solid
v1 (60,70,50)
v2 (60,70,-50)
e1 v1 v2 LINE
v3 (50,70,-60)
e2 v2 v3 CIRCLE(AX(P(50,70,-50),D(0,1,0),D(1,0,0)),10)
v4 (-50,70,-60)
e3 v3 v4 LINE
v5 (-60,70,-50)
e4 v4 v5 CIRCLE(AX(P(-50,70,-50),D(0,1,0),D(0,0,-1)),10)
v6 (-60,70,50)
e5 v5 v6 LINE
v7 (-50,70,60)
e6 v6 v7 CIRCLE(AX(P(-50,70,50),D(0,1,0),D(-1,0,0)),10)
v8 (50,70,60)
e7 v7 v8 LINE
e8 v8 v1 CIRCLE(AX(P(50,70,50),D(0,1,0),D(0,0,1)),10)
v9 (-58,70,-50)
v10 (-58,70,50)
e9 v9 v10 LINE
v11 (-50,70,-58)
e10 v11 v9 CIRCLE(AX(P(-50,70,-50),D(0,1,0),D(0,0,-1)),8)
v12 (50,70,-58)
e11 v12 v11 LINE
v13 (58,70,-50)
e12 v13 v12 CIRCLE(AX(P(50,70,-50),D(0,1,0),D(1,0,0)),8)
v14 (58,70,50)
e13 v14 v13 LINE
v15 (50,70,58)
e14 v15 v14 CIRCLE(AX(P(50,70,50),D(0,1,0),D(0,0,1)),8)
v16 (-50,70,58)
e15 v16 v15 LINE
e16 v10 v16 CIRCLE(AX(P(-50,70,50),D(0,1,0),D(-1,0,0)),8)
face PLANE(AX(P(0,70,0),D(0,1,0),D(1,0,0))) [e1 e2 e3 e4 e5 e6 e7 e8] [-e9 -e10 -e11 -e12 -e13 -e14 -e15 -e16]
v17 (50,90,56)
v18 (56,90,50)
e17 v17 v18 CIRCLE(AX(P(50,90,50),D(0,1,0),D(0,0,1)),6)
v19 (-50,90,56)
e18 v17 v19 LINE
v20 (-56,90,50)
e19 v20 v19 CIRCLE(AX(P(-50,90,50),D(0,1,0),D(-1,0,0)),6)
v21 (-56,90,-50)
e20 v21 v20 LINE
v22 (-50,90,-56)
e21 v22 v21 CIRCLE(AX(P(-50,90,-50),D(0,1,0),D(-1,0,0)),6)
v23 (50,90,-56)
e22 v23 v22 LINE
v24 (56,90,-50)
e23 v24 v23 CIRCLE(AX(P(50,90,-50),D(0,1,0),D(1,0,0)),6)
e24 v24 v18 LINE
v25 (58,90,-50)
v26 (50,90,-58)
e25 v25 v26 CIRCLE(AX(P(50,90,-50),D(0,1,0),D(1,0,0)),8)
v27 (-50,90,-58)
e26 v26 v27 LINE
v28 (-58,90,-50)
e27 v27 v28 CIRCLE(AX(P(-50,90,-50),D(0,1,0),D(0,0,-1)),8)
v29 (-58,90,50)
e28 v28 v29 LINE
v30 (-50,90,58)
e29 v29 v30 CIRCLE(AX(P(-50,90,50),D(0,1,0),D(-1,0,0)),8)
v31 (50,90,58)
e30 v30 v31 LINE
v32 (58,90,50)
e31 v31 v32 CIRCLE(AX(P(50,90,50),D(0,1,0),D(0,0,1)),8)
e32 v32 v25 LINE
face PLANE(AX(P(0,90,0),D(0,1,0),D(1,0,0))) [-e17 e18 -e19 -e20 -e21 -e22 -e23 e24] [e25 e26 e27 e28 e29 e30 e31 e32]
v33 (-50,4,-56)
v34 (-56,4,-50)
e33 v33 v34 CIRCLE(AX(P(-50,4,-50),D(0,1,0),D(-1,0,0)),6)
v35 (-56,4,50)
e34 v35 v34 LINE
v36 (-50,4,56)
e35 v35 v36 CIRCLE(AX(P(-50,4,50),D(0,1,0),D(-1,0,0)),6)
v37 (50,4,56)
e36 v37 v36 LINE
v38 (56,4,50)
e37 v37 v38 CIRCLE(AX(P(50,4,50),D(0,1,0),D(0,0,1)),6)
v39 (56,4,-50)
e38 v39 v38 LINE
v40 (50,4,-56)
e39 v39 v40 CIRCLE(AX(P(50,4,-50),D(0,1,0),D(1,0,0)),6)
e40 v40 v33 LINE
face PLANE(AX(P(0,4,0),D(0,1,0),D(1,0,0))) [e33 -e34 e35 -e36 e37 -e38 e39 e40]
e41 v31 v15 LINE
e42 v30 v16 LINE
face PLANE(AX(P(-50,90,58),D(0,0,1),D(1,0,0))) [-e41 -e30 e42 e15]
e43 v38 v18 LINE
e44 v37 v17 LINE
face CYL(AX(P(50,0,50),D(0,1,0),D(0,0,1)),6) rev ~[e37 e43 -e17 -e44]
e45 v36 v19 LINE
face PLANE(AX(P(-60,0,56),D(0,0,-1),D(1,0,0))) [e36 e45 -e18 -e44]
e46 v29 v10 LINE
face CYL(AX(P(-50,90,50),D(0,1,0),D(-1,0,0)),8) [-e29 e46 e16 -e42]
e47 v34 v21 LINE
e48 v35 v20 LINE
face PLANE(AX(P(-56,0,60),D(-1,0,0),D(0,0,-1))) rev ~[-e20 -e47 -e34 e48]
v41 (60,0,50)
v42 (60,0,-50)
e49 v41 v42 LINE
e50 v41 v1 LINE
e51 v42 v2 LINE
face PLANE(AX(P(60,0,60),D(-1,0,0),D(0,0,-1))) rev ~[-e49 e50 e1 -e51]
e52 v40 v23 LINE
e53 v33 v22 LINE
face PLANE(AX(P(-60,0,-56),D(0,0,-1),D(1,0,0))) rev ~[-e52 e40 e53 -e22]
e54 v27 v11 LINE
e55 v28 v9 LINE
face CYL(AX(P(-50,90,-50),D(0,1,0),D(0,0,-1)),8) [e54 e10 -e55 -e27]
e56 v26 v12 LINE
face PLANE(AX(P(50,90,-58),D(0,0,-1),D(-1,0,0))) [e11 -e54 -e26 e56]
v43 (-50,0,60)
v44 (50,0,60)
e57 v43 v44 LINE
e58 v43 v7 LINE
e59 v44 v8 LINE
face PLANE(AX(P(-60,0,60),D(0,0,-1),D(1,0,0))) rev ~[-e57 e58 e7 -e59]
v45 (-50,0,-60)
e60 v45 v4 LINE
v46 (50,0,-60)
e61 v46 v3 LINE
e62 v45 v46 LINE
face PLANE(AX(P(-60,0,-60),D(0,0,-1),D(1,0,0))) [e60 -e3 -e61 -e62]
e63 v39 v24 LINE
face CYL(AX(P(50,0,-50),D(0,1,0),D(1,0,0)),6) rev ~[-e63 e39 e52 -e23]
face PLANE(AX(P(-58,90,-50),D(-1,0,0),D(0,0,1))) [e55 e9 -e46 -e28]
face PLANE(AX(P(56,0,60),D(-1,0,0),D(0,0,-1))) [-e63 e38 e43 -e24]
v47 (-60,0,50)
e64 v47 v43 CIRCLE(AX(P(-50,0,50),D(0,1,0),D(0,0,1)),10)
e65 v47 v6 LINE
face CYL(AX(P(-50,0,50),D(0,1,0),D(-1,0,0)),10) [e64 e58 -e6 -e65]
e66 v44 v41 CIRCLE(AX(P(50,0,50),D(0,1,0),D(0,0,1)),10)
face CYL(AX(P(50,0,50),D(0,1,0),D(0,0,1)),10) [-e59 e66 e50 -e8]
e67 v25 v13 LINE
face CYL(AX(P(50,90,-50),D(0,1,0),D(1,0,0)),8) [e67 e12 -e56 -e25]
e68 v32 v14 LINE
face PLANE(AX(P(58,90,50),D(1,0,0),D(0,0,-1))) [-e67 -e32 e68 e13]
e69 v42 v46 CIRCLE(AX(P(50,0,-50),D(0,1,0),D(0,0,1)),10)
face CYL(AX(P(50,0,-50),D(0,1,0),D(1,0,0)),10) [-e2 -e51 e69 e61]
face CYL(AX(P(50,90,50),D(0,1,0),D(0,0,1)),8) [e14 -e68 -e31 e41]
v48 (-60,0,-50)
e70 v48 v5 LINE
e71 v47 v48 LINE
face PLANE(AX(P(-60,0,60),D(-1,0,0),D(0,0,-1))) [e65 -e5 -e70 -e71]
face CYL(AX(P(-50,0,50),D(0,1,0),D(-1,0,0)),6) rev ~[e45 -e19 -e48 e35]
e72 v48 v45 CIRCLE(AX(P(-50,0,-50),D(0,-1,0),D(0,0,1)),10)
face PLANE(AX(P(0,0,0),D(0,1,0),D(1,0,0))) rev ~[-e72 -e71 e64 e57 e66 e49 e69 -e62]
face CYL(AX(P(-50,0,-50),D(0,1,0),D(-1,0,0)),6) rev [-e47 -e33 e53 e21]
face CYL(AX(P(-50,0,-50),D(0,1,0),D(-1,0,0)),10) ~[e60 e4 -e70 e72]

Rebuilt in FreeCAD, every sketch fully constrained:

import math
import FreeCAD as App
import Part
import Sketcher
from FreeCAD import Vector
Q = App.Units.Quantity


def edges_at(feature, points):
    """Names of the edges that pass closest to the given points."""
    edges = feature.Shape.Edges
    near = lambda p: min(range(len(edges)), key=lambda i: edges[i].distToShape(Part.Vertex(*p))[0])
    return sorted({f"Edge{near(p) + 1}" for p in points})


def faces_at(feature, points):
    """Names of the faces that lie closest to the given points."""
    faces = feature.Shape.Faces
    near = lambda p: min(range(len(faces)), key=lambda i: faces[i].distToShape(Part.Vertex(*p))[0])
    return sorted({f"Face{near(p) + 1}" for p in points})


def add_polygon(sketch, points):
    """Adds a closed chain of lines whose ends are joined by coincident constraints."""
    first, n = sketch.GeometryCount, len(points)
    for a, b in zip(points, points[1:] + points[:1]):
        sketch.addGeometry(Part.LineSegment(App.Vector(*a, 0), App.Vector(*b, 0)), False)
    for i in range(n):
        sketch.addConstraint(Sketcher.Constraint("Coincident", first + i, 2, first + (i + 1) % n, 1))

doc = App.newDocument("Part")
params = doc.addObject("Spreadsheet::Sheet", "Params")
for row, (alias, value) in enumerate([
    ("sketch1_width", "120 mm"),
    ("pad1_length", "90 mm"),
    ("fillet_radius", "10 mm"),
    ("thickness_wall", "4 mm"),
    ("sketch2_radius", "10 mm"),
    ("sketch2_radius2", "8 mm"),
    ("sketch2_width", "100 mm"),
    ("pocket1_length", "20 mm"),
], start=1):
    params.set(f"A{row}", alias)
    params.set(f"B{row}", "=" + value)
    params.setAlias(f"B{row}", alias)

body = doc.addObject("PartDesign::Body", "Body")

# Sketch on XZ plane
sketch1 = doc.addObject("Sketcher::SketchObject", "Sketch")
body.addObject(sketch1)
sketch1.AttachmentSupport = (doc.XZ_Plane, [""])
sketch1.MapMode = "FlatFace"
add_polygon(sketch1, [(-60, -60), (-60, 60), (60, 60), (60, -60)])  # lines 0-3
sketch1.addConstraint(Sketcher.Constraint("Vertical", 0))
sketch1.addConstraint(Sketcher.Constraint("Horizontal", 1))
sketch1.addConstraint(Sketcher.Constraint("Vertical", 2))
sketch1.addConstraint(Sketcher.Constraint("Horizontal", 3))
sketch1.addConstraint(Sketcher.Constraint("Symmetric", 0, 2, 2, 2, -1, 1))
sketch1.addConstraint(Sketcher.Constraint("Equal", 3, 0))
sketch1.addConstraint(Sketcher.Constraint("DistanceX", 1, 1, 1, 2, Q("120 mm")))
sketch1.setExpression("Constraints[10]", "Params.sketch1_width")
pad1 = doc.addObject("PartDesign::Pad", "Pad")
body.addObject(pad1)
pad1.Profile = sketch1
pad1.setExpression("Length", "Params.pad1_length")
pad1.Reversed = True
doc.recompute()

fillet = doc.addObject("PartDesign::Fillet", "Fillet")
body.addObject(fillet)
fillet.Base = (pad1, edges_at(pad1, [
    (60, 45, 60),
    (-60, 45, 60),
    (-60, 45, -60),
    (60, 45, -60),
]))
fillet.setExpression("Radius", "Params.fillet_radius")
doc.recompute()

thickness = doc.addObject("PartDesign::Thickness", "Thickness")
body.addObject(thickness)
thickness.Base = (fillet, faces_at(fillet, [(0, 90, 0)]))
thickness.setExpression("Value", "Params.thickness_wall")
thickness.Reversed = True
thickness.Join = "Intersection"

# Sketch on XZ plane
sketch2 = doc.addObject("Sketcher::SketchObject", "Sketch001")
body.addObject(sketch2)
sketch2.AttachmentSupport = (doc.XZ_Plane, [""])
sketch2.MapMode = "FlatFace"
sketch2.AttachmentOffset = App.Placement(Vector(0, 0, -90), App.Rotation())
sketch2.addGeometry(Part.LineSegment(Vector(50, -60, 0), Vector(-50, -60, 0)), False)
sketch2.addGeometry(Part.ArcOfCircle(Part.Circle(Vector(-50, -50, 0), Vector(0, 0, 1), 10), math.radians(180), math.radians(270)), False)
sketch2.addGeometry(Part.LineSegment(Vector(-60, -50, 0), Vector(-60, 50, 0)), False)
sketch2.addGeometry(Part.ArcOfCircle(Part.Circle(Vector(-50, 50, 0), Vector(0, 0, 1), 10), math.radians(90), math.radians(180)), False)
sketch2.addGeometry(Part.LineSegment(Vector(-50, 60, 0), Vector(50, 60, 0)), False)
sketch2.addGeometry(Part.ArcOfCircle(Part.Circle(Vector(50, 50, 0), Vector(0, 0, 1), 10), math.radians(0), math.radians(90)), False)
sketch2.addGeometry(Part.LineSegment(Vector(60, 50, 0), Vector(60, -50, 0)), False)
sketch2.addGeometry(Part.ArcOfCircle(Part.Circle(Vector(50, -50, 0), Vector(0, 0, 1), 10), math.radians(-90), math.radians(0)), False)
sketch2.addGeometry(Part.LineSegment(Vector(-50, -58, 0), Vector(50, -58, 0)), False)
sketch2.addGeometry(Part.ArcOfCircle(Part.Circle(Vector(50, -50, 0), Vector(0, 0, 1), 8), math.radians(-90), math.radians(0)), False)
sketch2.addGeometry(Part.LineSegment(Vector(58, -50, 0), Vector(58, 50, 0)), False)
sketch2.addGeometry(Part.ArcOfCircle(Part.Circle(Vector(50, 50, 0), Vector(0, 0, 1), 8), math.radians(0), math.radians(90)), False)
sketch2.addGeometry(Part.LineSegment(Vector(50, 58, 0), Vector(-50, 58, 0)), False)
sketch2.addGeometry(Part.ArcOfCircle(Part.Circle(Vector(-50, 50, 0), Vector(0, 0, 1), 8), math.radians(90), math.radians(180)), False)
sketch2.addGeometry(Part.LineSegment(Vector(-58, 50, 0), Vector(-58, -50, 0)), False)
sketch2.addGeometry(Part.ArcOfCircle(Part.Circle(Vector(-50, -50, 0), Vector(0, 0, 1), 8), math.radians(-180), math.radians(-90)), False)
sketch2.addConstraint(Sketcher.Constraint("Tangent", 0, 2, 1, 2))
sketch2.addConstraint(Sketcher.Constraint("Tangent", 1, 1, 2, 1))
sketch2.addConstraint(Sketcher.Constraint("Tangent", 2, 2, 3, 2))
sketch2.addConstraint(Sketcher.Constraint("Tangent", 3, 1, 4, 1))
sketch2.addConstraint(Sketcher.Constraint("Tangent", 4, 2, 5, 2))
sketch2.addConstraint(Sketcher.Constraint("Tangent", 5, 1, 6, 1))
sketch2.addConstraint(Sketcher.Constraint("Tangent", 6, 2, 7, 2))
sketch2.addConstraint(Sketcher.Constraint("Tangent", 7, 1, 0, 1))
sketch2.addConstraint(Sketcher.Constraint("Tangent", 8, 2, 9, 1))
sketch2.addConstraint(Sketcher.Constraint("Tangent", 9, 2, 10, 1))
sketch2.addConstraint(Sketcher.Constraint("Tangent", 10, 2, 11, 1))
sketch2.addConstraint(Sketcher.Constraint("Tangent", 11, 2, 12, 1))
sketch2.addConstraint(Sketcher.Constraint("Tangent", 12, 2, 13, 1))
sketch2.addConstraint(Sketcher.Constraint("Tangent", 13, 2, 14, 1))
sketch2.addConstraint(Sketcher.Constraint("Tangent", 14, 2, 15, 1))
sketch2.addConstraint(Sketcher.Constraint("Tangent", 15, 2, 8, 1))
sketch2.addConstraint(Sketcher.Constraint("Horizontal", 0))
sketch2.addConstraint(Sketcher.Constraint("Vertical", 2))
sketch2.addConstraint(Sketcher.Constraint("Horizontal", 4))
sketch2.addConstraint(Sketcher.Constraint("Vertical", 6))
sketch2.addConstraint(Sketcher.Constraint("Horizontal", 8))
sketch2.addConstraint(Sketcher.Constraint("Vertical", 10))
sketch2.addConstraint(Sketcher.Constraint("Horizontal", 12))
sketch2.addConstraint(Sketcher.Constraint("Vertical", 14))
sketch2.addConstraint(Sketcher.Constraint("Coincident", 9, 3, 7, 3))
sketch2.addConstraint(Sketcher.Constraint("Coincident", 11, 3, 5, 3))
sketch2.addConstraint(Sketcher.Constraint("Coincident", 13, 3, 3, 3))
sketch2.addConstraint(Sketcher.Constraint("Equal", 1, 3))
sketch2.addConstraint(Sketcher.Constraint("Equal", 3, 5))
sketch2.addConstraint(Sketcher.Constraint("Equal", 5, 7))
sketch2.addConstraint(Sketcher.Constraint("Equal", 13, 15))
sketch2.addConstraint(Sketcher.Constraint("Symmetric", 1, 3, 5, 3, -1, 1))
sketch2.addConstraint(Sketcher.Constraint("Equal", 12, 2))
sketch2.addConstraint(Sketcher.Constraint("Radius", 1, Q("10 mm")))
sketch2.addConstraint(Sketcher.Constraint("Radius", 9, Q("8 mm")))
sketch2.addConstraint(Sketcher.Constraint("DistanceX", 0, 2, 0, 1, Q("100 mm")))
sketch2.setExpression("Constraints[33]", "Params.sketch2_radius")
sketch2.setExpression("Constraints[34]", "Params.sketch2_radius2")
sketch2.setExpression("Constraints[35]", "Params.sketch2_width")
pocket1 = doc.addObject("PartDesign::Pocket", "Pocket")
body.addObject(pocket1)
pocket1.Profile = sketch2
pocket1.setExpression("Length", "Params.pocket1_length")
pocket1.Reversed = True

doc.recompute()
